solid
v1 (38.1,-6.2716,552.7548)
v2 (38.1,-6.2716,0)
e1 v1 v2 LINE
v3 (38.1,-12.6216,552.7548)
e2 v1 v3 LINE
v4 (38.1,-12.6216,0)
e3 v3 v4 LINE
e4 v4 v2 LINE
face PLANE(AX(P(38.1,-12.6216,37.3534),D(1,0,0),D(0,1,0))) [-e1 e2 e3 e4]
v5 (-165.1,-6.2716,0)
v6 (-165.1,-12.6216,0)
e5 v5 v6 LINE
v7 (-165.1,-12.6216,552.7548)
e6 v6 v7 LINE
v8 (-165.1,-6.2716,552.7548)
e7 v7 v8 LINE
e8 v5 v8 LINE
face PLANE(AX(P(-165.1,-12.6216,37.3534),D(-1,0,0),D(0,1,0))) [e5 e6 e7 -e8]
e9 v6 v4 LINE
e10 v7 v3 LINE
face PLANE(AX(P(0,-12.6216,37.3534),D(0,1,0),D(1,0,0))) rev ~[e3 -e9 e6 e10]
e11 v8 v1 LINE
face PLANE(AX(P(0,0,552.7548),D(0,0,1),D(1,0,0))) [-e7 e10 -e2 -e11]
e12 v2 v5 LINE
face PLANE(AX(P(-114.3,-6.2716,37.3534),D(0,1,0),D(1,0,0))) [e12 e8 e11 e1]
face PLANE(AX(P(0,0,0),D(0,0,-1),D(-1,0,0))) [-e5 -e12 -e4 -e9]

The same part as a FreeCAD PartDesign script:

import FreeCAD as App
import Part
import Sketcher

V = App.Vector
Q = App.Units.Quantity

doc = App.newDocument("Part")
body = doc.addObject("PartDesign::Body", "Body")

# Sketch on XY plane
sketch1 = body.newObject("Sketcher::SketchObject", "Sketch")
sketch1.AttachmentSupport = (doc.getObject("XY_Plane"), [""])
sketch1.MapMode = "FlatFace"
sketch1.AttachmentOffset = App.Placement(V(0, 0, 1.4706063 * 25.4), App.Rotation())
sketch1.addGeometry([
    Part.LineSegment(V(38, -6, 0), V(-165, -6, 0)),
    Part.LineSegment(V(-165, -6, 0), V(-165, -13, 0)),
    Part.LineSegment(V(-165, -13, 0), V(38, -13, 0)),
    Part.LineSegment(V(38, -13, 0), V(38, -6, 0)),
], False)
sketch1.addConstraint([
    Sketcher.Constraint("Coincident", 0, 2, 1, 1),
    Sketcher.Constraint("Coincident", 1, 2, 2, 1),
    Sketcher.Constraint("Coincident", 2, 2, 3, 1),
    Sketcher.Constraint("Coincident", 3, 2, 0, 1),
    Sketcher.Constraint("Horizontal", 0),
    Sketcher.Constraint("Vertical", 1),
    Sketcher.Constraint("Horizontal", 2),
    Sketcher.Constraint("Vertical", 3),
    Sketcher.Constraint("DistanceX", 0, 2, 0, 1, Q("8 in")),
    Sketcher.Constraint("DistanceY", 1, 2, 1, 1, Q("0.25 in")),
    Sketcher.Constraint("DistanceX", 0, 2, -1, 1, Q("6.5 in")),
    Sketcher.Constraint("DistanceY", 0, 2, -1, 1, 6.2716),
])
pad1 = body.newObject("PartDesign::Pad", "Pad")
pad1.Profile = sketch1
pad1.Length = Q("20.2913937 in")

# Sketch on XY plane
sketch2 = body.newObject("Sketcher::SketchObject", "Sketch001")
sketch2.AttachmentSupport = (doc.getObject("XY_Plane"), [""])
sketch2.MapMode = "FlatFace"
sketch2.AttachmentOffset = App.Placement(V(0, 0, 1.4706063 * 25.4), App.Rotation())
sketch2.addGeometry([
    Part.LineSegment(V(38, -13, 0), V(-165, -13, 0)),
    Part.LineSegment(V(-165, -13, 0), V(-165, -6, 0)),
    Part.LineSegment(V(-165, -6, 0), V(38, -6, 0)),
    Part.LineSegment(V(38, -6, 0), V(38, -13, 0)),
], False)
sketch2.addConstraint([
    Sketcher.Constraint("Coincident", 0, 2, 1, 1),
    Sketcher.Constraint("Coincident", 1, 2, 2, 1),
    Sketcher.Constraint("Coincident", 2, 2, 3, 1),
    Sketcher.Constraint("Coincident", 3, 2, 0, 1),
    Sketcher.Constraint("Horizontal", 0),
    Sketcher.Constraint("Vertical", 1),
    Sketcher.Constraint("Horizontal", 2),
    Sketcher.Constraint("Vertical", 3),
    Sketcher.Constraint("DistanceX", 0, 2, 0, 1, Q("8 in")),
    Sketcher.Constraint("DistanceY", 1, 1, 1, 2, Q("0.25 in")),
    Sketcher.Constraint("DistanceX", 0, 2, -1, 1, Q("6.5 in")),
    Sketcher.Constraint("DistanceY", 0, 2, -1, 1, 12.6216),
])
pad2 = body.newObject("PartDesign::Pad", "Pad001")
pad2.Profile = sketch2
pad2.Length = Q("1.4706063 in")
pad2.Reversed = True

doc.recompute()
